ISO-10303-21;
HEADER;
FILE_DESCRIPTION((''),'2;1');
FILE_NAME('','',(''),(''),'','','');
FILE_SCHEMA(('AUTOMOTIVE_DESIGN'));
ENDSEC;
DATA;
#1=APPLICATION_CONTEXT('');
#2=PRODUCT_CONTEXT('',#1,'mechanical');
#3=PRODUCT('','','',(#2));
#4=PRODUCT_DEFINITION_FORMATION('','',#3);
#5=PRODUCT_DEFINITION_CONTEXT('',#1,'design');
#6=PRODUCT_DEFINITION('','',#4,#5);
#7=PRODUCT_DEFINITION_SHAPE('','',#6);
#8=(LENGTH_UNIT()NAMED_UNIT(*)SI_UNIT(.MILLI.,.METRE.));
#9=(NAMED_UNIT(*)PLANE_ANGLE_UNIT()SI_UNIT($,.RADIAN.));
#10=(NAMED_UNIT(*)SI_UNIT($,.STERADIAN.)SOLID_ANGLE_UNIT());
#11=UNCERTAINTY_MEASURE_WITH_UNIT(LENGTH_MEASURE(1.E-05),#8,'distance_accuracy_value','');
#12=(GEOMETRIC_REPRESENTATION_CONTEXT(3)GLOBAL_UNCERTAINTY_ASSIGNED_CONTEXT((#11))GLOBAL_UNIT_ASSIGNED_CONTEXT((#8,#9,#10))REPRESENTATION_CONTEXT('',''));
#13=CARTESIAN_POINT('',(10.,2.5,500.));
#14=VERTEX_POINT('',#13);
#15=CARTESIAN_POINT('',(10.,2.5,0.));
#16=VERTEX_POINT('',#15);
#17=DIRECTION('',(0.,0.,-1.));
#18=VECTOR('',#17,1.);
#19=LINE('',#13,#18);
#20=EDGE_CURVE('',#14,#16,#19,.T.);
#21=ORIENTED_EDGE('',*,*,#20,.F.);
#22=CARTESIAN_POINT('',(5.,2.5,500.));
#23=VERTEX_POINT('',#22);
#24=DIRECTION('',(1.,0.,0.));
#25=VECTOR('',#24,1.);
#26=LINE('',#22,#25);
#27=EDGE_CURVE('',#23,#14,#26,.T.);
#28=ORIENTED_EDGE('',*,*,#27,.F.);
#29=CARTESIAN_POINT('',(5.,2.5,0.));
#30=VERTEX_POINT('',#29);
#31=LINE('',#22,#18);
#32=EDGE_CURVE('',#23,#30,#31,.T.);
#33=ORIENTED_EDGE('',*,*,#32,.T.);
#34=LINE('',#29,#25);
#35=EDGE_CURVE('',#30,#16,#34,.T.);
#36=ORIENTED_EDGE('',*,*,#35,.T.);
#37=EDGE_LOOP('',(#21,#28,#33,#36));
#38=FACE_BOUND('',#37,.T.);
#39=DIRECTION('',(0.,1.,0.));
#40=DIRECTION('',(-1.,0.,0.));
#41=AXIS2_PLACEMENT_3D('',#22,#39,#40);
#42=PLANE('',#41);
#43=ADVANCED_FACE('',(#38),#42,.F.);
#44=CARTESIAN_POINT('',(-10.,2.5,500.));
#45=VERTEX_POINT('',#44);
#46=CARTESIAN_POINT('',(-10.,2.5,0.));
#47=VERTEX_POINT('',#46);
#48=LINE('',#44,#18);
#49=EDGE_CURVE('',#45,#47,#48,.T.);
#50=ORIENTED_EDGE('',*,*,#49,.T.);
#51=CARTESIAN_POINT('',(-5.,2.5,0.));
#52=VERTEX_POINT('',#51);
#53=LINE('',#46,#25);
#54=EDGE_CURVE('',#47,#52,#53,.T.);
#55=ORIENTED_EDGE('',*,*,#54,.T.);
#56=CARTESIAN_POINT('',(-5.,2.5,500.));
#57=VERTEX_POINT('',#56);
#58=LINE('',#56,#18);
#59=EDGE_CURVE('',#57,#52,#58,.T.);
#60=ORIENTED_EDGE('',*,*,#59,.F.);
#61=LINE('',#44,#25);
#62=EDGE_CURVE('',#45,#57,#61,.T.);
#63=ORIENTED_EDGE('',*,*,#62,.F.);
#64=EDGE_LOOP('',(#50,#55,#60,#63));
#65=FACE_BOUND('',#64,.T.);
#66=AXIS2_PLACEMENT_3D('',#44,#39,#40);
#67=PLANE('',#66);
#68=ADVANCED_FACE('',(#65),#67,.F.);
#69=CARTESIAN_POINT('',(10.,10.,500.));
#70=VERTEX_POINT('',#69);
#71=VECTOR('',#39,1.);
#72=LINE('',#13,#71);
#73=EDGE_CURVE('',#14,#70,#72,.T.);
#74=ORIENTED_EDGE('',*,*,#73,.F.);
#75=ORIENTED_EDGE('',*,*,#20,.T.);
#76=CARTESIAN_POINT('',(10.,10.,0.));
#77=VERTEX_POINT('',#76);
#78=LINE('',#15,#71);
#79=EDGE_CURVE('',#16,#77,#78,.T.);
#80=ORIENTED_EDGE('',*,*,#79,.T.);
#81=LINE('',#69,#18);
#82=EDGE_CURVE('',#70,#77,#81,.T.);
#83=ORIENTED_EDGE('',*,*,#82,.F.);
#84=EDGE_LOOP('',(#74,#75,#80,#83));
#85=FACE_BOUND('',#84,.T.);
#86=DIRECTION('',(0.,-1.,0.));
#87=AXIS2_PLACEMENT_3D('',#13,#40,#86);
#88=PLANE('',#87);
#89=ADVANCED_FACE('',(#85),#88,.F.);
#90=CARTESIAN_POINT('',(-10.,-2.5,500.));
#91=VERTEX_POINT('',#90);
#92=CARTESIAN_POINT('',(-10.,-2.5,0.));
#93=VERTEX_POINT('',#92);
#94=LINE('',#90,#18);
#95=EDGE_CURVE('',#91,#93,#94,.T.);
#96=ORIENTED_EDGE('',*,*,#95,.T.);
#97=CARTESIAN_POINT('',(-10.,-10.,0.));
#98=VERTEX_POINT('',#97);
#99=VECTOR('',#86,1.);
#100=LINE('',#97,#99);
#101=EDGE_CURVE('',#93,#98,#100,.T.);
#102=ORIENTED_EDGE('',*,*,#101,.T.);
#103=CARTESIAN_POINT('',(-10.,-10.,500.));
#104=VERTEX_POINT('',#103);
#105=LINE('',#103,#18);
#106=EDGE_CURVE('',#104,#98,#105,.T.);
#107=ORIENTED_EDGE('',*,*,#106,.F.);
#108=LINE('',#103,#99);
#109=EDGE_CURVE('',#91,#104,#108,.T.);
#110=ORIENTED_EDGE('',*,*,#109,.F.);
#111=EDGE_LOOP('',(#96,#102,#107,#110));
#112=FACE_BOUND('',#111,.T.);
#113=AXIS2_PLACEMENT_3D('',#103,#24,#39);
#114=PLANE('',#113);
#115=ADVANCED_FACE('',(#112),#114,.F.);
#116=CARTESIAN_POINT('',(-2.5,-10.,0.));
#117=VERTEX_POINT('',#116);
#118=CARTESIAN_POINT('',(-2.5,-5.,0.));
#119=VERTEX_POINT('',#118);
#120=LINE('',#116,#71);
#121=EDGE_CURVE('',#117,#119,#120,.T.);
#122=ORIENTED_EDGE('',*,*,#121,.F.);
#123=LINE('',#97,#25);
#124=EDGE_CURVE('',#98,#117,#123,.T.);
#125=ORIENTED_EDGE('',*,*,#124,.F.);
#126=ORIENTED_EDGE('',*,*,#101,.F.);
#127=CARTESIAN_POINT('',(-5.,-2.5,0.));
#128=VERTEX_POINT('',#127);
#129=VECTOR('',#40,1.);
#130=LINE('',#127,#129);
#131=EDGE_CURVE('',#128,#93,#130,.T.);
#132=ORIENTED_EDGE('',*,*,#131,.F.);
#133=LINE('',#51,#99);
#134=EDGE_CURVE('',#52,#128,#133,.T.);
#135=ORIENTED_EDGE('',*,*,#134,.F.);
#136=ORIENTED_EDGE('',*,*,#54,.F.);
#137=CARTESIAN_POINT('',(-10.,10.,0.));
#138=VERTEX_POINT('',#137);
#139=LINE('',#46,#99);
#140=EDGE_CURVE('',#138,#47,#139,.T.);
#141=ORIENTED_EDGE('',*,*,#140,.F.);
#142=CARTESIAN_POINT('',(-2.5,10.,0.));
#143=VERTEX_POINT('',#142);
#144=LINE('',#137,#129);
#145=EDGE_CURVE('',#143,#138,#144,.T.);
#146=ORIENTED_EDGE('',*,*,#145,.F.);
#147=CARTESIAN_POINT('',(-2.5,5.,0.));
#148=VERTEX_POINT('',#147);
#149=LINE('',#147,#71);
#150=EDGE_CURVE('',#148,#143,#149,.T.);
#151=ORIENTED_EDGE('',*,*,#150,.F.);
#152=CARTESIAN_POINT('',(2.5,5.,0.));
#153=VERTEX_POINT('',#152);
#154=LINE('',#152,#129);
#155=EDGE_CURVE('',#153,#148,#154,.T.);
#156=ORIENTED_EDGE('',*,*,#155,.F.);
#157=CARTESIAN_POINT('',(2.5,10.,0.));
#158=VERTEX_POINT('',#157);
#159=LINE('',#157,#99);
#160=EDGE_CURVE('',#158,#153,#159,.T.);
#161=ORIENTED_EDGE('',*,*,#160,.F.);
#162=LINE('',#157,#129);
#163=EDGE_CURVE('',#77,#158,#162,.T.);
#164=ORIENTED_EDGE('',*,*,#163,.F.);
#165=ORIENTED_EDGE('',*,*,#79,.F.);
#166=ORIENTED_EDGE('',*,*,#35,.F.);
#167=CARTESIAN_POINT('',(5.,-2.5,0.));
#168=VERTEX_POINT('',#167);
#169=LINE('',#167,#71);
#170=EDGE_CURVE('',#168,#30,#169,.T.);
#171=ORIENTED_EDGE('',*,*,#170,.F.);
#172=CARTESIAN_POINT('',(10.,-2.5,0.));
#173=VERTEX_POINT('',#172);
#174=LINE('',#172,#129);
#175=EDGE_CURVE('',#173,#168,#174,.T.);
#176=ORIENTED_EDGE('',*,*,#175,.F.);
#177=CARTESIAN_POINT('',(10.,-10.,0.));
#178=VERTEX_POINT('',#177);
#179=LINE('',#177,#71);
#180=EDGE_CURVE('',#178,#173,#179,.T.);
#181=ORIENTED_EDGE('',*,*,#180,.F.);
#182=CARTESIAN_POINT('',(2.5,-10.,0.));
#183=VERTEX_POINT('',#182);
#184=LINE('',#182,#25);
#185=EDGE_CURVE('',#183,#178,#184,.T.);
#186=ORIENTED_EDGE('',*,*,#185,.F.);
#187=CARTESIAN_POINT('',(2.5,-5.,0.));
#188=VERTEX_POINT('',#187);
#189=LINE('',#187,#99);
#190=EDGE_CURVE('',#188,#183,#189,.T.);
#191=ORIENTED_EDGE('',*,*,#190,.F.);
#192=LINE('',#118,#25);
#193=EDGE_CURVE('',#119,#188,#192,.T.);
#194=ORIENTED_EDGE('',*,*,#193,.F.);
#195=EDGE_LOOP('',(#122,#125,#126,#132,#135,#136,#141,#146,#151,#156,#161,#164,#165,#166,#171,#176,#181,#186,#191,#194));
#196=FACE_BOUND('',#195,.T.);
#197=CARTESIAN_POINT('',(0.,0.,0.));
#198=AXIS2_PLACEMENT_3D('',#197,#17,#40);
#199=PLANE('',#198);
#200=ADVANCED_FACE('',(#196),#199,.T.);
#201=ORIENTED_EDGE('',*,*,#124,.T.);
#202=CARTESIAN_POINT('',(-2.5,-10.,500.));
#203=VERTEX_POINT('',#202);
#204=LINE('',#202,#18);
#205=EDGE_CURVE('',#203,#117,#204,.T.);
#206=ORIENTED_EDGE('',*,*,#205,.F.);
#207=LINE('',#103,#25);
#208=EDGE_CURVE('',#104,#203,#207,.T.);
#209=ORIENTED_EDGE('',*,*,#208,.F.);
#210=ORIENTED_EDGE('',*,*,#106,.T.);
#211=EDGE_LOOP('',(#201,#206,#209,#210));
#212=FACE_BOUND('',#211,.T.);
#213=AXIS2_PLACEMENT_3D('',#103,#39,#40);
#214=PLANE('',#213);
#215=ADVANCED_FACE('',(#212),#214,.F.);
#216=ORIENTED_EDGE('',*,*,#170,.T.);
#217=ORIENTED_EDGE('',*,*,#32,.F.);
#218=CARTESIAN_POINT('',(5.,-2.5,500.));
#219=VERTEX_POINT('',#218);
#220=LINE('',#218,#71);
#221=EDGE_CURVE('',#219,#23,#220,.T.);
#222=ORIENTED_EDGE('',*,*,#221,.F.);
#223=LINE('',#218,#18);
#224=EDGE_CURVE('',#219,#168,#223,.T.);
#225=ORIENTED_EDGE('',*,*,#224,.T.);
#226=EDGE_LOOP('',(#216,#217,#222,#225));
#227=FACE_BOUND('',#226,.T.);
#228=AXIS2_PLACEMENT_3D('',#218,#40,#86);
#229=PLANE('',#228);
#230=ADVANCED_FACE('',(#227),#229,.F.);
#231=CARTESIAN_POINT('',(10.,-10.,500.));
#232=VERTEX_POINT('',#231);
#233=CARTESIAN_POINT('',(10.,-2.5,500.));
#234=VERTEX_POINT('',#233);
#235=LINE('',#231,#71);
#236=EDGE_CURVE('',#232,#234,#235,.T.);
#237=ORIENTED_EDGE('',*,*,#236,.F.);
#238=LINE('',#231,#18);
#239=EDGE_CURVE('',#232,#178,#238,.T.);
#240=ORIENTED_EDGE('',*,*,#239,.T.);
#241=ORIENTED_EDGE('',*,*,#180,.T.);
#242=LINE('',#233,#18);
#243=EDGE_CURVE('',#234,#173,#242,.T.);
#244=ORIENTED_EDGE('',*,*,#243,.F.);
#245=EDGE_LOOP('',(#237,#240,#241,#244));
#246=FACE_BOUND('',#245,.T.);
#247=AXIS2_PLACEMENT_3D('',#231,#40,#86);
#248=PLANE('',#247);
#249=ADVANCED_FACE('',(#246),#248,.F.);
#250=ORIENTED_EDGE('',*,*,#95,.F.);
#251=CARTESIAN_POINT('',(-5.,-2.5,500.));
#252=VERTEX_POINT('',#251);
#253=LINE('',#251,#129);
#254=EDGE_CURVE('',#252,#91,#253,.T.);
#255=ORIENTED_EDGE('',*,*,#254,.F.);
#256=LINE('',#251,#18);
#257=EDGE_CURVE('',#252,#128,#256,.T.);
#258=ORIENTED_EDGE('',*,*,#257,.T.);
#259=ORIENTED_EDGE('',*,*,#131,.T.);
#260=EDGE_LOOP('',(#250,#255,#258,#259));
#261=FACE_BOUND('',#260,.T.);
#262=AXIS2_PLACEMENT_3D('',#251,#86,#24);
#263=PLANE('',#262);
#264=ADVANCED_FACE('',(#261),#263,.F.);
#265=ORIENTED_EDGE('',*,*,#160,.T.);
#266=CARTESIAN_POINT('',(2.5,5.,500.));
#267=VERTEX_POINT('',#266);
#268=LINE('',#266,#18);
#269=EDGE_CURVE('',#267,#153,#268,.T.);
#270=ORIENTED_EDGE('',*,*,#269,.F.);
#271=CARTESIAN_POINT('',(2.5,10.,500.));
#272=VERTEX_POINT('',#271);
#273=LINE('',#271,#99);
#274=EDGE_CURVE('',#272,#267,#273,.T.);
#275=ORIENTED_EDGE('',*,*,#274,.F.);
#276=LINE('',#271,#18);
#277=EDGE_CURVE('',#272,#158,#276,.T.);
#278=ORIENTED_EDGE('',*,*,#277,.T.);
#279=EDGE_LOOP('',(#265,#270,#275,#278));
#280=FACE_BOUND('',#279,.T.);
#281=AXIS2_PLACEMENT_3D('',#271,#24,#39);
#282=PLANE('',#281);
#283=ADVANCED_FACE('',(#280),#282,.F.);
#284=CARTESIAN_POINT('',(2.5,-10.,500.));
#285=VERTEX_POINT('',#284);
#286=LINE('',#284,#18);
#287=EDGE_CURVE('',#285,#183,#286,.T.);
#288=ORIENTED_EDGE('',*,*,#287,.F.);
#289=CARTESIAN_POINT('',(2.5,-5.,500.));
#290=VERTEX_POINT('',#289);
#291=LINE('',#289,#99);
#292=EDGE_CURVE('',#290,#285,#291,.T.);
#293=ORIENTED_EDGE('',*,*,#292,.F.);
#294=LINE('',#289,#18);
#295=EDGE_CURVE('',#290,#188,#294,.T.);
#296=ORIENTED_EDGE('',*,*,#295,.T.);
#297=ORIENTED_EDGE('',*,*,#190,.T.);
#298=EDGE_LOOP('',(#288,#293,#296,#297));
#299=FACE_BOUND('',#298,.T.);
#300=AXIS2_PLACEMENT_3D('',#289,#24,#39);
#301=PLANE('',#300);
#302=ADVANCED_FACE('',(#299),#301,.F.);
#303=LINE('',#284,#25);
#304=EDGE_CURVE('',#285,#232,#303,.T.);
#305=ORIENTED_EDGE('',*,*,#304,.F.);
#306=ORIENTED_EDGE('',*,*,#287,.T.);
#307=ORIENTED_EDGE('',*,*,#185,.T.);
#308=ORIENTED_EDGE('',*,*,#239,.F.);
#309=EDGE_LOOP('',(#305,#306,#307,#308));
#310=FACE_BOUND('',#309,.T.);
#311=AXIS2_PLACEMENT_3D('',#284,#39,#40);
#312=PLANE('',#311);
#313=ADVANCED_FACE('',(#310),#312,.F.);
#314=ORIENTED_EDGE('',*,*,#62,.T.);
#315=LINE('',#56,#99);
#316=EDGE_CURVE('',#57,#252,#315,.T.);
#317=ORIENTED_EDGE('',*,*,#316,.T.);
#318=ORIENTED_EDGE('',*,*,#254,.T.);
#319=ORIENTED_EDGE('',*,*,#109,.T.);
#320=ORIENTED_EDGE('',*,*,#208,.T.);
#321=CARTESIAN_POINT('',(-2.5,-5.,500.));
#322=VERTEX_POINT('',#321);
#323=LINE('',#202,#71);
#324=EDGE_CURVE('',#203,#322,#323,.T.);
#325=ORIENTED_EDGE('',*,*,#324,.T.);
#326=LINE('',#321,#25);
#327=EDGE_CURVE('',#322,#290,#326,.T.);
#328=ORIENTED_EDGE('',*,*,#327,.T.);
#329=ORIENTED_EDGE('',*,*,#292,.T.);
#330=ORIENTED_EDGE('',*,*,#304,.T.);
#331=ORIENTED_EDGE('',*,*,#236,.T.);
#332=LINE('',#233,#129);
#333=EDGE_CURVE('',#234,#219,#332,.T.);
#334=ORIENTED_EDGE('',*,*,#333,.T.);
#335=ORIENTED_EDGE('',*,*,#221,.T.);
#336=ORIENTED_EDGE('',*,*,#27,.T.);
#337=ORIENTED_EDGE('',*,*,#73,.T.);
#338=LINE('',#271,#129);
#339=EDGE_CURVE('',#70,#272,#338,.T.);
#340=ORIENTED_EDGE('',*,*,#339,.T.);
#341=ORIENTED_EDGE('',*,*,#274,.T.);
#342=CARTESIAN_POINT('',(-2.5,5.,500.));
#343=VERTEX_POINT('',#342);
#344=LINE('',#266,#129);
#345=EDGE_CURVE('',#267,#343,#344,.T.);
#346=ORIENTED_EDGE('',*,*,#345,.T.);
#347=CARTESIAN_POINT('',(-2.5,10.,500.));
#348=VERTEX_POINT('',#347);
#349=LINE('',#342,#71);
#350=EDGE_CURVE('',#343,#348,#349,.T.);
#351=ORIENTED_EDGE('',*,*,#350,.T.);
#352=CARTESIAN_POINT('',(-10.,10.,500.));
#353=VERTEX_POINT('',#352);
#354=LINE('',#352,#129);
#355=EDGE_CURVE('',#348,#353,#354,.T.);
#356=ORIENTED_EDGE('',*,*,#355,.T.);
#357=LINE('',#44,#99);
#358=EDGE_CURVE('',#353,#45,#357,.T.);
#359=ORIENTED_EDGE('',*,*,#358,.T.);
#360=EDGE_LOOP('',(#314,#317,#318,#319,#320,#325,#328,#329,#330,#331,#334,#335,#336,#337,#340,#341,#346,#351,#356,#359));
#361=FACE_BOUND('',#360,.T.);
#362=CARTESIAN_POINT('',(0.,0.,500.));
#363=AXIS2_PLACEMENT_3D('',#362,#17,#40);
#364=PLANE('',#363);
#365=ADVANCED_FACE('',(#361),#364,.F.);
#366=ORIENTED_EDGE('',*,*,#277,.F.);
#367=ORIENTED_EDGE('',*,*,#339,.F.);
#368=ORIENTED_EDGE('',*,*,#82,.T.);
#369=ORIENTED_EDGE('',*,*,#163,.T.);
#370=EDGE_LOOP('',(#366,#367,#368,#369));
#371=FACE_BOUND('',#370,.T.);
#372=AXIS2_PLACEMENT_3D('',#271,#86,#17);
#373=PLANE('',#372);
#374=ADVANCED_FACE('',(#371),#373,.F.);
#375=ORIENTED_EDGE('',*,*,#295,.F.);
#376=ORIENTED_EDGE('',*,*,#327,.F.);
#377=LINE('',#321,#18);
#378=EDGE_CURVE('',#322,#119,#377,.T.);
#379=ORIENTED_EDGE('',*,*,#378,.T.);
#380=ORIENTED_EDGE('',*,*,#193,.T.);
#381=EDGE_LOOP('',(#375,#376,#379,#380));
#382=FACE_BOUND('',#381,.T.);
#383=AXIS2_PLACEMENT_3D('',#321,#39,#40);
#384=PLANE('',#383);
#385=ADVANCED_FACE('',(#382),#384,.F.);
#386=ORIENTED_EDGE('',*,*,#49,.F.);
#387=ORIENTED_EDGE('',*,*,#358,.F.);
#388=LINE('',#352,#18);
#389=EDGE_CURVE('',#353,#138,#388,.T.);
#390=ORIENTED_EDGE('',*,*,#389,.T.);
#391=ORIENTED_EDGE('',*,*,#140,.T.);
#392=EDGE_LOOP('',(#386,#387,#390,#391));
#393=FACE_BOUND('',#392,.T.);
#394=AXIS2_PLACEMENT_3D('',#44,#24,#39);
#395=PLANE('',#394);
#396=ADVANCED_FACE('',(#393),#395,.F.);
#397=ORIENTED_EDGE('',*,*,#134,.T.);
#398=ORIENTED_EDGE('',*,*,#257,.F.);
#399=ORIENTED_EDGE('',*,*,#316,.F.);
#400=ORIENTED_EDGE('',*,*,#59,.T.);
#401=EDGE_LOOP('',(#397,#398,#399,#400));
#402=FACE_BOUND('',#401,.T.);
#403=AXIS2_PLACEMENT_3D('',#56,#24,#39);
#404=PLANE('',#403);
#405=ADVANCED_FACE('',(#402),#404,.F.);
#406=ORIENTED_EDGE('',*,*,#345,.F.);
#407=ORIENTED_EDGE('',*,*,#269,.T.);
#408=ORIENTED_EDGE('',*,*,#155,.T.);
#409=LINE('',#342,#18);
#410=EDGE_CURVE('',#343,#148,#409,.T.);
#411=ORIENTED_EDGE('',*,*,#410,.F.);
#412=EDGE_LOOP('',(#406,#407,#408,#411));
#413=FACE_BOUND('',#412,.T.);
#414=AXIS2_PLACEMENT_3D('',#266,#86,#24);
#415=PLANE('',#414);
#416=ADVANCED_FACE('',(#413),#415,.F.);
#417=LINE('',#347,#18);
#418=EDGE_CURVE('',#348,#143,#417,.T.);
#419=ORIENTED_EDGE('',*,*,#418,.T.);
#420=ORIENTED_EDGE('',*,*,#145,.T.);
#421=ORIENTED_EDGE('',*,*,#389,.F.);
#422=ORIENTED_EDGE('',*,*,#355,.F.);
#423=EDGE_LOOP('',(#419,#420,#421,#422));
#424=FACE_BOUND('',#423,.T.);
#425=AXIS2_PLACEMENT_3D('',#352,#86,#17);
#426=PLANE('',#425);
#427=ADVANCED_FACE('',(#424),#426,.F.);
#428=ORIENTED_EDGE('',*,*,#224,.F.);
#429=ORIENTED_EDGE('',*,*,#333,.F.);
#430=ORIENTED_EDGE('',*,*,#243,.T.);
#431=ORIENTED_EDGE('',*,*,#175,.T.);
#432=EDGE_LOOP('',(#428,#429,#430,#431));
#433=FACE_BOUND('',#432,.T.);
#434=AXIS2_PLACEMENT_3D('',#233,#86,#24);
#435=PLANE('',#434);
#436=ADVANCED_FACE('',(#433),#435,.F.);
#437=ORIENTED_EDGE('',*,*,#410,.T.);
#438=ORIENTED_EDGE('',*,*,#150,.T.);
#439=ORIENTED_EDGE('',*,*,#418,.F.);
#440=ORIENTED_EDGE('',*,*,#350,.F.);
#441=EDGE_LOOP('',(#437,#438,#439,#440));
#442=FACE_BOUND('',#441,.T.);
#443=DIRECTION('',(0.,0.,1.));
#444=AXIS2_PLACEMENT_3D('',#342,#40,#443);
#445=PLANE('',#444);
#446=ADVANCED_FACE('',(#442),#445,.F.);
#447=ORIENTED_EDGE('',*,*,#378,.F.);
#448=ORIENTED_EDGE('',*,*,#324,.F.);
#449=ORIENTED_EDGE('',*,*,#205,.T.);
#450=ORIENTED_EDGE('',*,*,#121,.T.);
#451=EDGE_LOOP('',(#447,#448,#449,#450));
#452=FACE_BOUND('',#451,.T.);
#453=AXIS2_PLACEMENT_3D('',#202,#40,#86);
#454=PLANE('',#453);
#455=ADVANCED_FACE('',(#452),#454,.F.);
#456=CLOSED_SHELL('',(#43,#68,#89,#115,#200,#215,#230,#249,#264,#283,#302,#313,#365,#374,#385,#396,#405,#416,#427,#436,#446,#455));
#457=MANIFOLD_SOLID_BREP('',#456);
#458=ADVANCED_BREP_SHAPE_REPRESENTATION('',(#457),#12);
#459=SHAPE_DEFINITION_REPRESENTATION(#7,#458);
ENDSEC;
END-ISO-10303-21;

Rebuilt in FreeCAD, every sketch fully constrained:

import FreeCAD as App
import Part
import Sketcher
from FreeCAD import Vector

doc = App.newDocument("Part")
body = doc.addObject("PartDesign::Body", "Body")

sketch1 = body.newObject("Sketcher::SketchObject", "Sketch")
sketch1.AttachmentSupport = (doc.getObject("XY_Plane"), [""])
sketch1.MapMode = "FlatFace"
sketch1.addGeometry(Part.LineSegment(Vector(2.5, 10, 0), Vector(2.5, 5, 0)), False)
sketch1.addGeometry(Part.LineSegment(Vector(2.5, 5, 0), Vector(-2.5, 5, 0)), False)
sketch1.addGeometry(Part.LineSegment(Vector(-2.5, 5, 0), Vector(-2.5, 10, 0)), False)
sketch1.addGeometry(Part.LineSegment(Vector(-2.5, 10, 0), Vector(-10, 10, 0)), False)
sketch1.addGeometry(Part.LineSegment(Vector(-10, 10, 0), Vector(-10, 2.5, 0)), False)
sketch1.addGeometry(Part.LineSegment(Vector(-10, 2.5, 0), Vector(-5, 2.5, 0)), False)
sketch1.addGeometry(Part.LineSegment(Vector(-5, 2.5, 0), Vector(-5, -2.5, 0)), False)
sketch1.addGeometry(Part.LineSegment(Vector(-5, -2.5, 0), Vector(-10, -2.5, 0)), False)
sketch1.addGeometry(Part.LineSegment(Vector(-10, -2.5, 0), Vector(-10, -10, 0)), False)
sketch1.addGeometry(Part.LineSegment(Vector(-10, -10, 0), Vector(-2.5, -10, 0)), False)
sketch1.addGeometry(Part.LineSegment(Vector(-2.5, -10, 0), Vector(-2.5, -5, 0)), False)
sketch1.addGeometry(Part.LineSegment(Vector(-2.5, -5, 0), Vector(2.5, -5, 0)), False)
sketch1.addGeometry(Part.LineSegment(Vector(2.5, -5, 0), Vector(2.5, -10, 0)), False)
sketch1.addGeometry(Part.LineSegment(Vector(2.5, -10, 0), Vector(10, -10, 0)), False)
sketch1.addGeometry(Part.LineSegment(Vector(10, -10, 0), Vector(10, -2.5, 0)), False)
sketch1.addGeometry(Part.LineSegment(Vector(10, -2.5, 0), Vector(5, -2.5, 0)), False)
sketch1.addGeometry(Part.LineSegment(Vector(5, -2.5, 0), Vector(5, 2.5, 0)), False)
sketch1.addGeometry(Part.LineSegment(Vector(5, 2.5, 0), Vector(10, 2.5, 0)), False)
sketch1.addGeometry(Part.LineSegment(Vector(10, 2.5, 0), Vector(10, 10, 0)), False)
sketch1.addGeometry(Part.LineSegment(Vector(10, 10, 0), Vector(2.5, 10, 0)), False)
sketch1.addConstraint(Sketcher.Constraint("Coincident", 0, 2, 1, 1))
sketch1.addConstraint(Sketcher.Constraint("Coincident", 1, 2, 2, 1))
sketch1.addConstraint(Sketcher.Constraint("Coincident", 2, 2, 3, 1))
sketch1.addConstraint(Sketcher.Constraint("Coincident", 3, 2, 4, 1))
sketch1.addConstraint(Sketcher.Constraint("Coincident", 4, 2, 5, 1))
sketch1.addConstraint(Sketcher.Constraint("Coincident", 5, 2, 6, 1))
sketch1.addConstraint(Sketcher.Constraint("Coincident", 6, 2, 7, 1))
sketch1.addConstraint(Sketcher.Constraint("Coincident", 7, 2, 8, 1))
sketch1.addConstraint(Sketcher.Constraint("Coincident", 8, 2, 9, 1))
sketch1.addConstraint(Sketcher.Constraint("Coincident", 9, 2, 10, 1))
sketch1.addConstraint(Sketcher.Constraint("Coincident", 10, 2, 11, 1))
sketch1.addConstraint(Sketcher.Constraint("Coincident", 11, 2, 12, 1))
sketch1.addConstraint(Sketcher.Constraint("Coincident", 12, 2, 13, 1))
sketch1.addConstraint(Sketcher.Constraint("Coincident", 13, 2, 14, 1))
sketch1.addConstraint(Sketcher.Constraint("Coincident", 14, 2, 15, 1))
sketch1.addConstraint(Sketcher.Constraint("Coincident", 15, 2, 16, 1))
sketch1.addConstraint(Sketcher.Constraint("Coincident", 16, 2, 17, 1))
sketch1.addConstraint(Sketcher.Constraint("Coincident", 17, 2, 18, 1))
sketch1.addConstraint(Sketcher.Constraint("Coincident", 18, 2, 19, 1))
sketch1.addConstraint(Sketcher.Constraint("Coincident", 19, 2, 0, 1))
sketch1.addConstraint(Sketcher.Constraint("Vertical", 0))
sketch1.addConstraint(Sketcher.Constraint("Horizontal", 1))
sketch1.addConstraint(Sketcher.Constraint("Vertical", 2))
sketch1.addConstraint(Sketcher.Constraint("Horizontal", 3))
sketch1.addConstraint(Sketcher.Constraint("Vertical", 4))
sketch1.addConstraint(Sketcher.Constraint("Horizontal", 5))
sketch1.addConstraint(Sketcher.Constraint("Vertical", 6))
sketch1.addConstraint(Sketcher.Constraint("Horizontal", 7))
sketch1.addConstraint(Sketcher.Constraint("Vertical", 8))
sketch1.addConstraint(Sketcher.Constraint("Horizontal", 9))
sketch1.addConstraint(Sketcher.Constraint("Vertical", 10))
sketch1.addConstraint(Sketcher.Constraint("Horizontal", 11))
sketch1.addConstraint(Sketcher.Constraint("Vertical", 12))
sketch1.addConstraint(Sketcher.Constraint("Horizontal", 13))
sketch1.addConstraint(Sketcher.Constraint("Vertical", 14))
sketch1.addConstraint(Sketcher.Constraint("Horizontal", 15))
sketch1.addConstraint(Sketcher.Constraint("Vertical", 16))
sketch1.addConstraint(Sketcher.Constraint("Horizontal", 17))
sketch1.addConstraint(Sketcher.Constraint("Vertical", 18))
sketch1.addConstraint(Sketcher.Constraint("Horizontal", 19))
sketch1.addConstraint(Sketcher.Constraint("Symmetric", 0, 2, 10, 2, -1, 1))
sketch1.addConstraint(Sketcher.Constraint("Symmetric", 2, 2, 12, 2, -1, 1))
sketch1.addConstraint(Sketcher.Constraint("Symmetric", 4, 2, 14, 2, -1, 1))
sketch1.addConstraint(Sketcher.Constraint("Symmetric", 6, 2, 16, 2, -1, 1))
sketch1.addConstraint(Sketcher.Constraint("Symmetric", 8, 2, 18, 2, -1, 1))
sketch1.addConstraint(Sketcher.Constraint("Symmetric", 9, 2, 12, 2, -2))
sketch1.addConstraint(Sketcher.Constraint("Symmetric", 7, 2, 14, 2, -2))
sketch1.addConstraint(Sketcher.Constraint("Equal", 1, 5))
sketch1.addConstraint(Sketcher.Constraint("Equal", 17, 0))
sketch1.addConstraint(Sketcher.Constraint("Equal", 19, 4))
sketch1.addConstraint(Sketcher.Constraint("Equal", 2, 6))
sketch1.addConstraint(Sketcher.Constraint("DistanceX", 1, 2, 1, 1, 5.0))
sketch1.addConstraint(Sketcher.Constraint("DistanceX", 3, 2, 3, 1, 7.5))
pad1 = body.newObject("PartDesign::Pad", "Pad")
pad1.Profile = sketch1
pad1.Length = 500

doc.recompute()
